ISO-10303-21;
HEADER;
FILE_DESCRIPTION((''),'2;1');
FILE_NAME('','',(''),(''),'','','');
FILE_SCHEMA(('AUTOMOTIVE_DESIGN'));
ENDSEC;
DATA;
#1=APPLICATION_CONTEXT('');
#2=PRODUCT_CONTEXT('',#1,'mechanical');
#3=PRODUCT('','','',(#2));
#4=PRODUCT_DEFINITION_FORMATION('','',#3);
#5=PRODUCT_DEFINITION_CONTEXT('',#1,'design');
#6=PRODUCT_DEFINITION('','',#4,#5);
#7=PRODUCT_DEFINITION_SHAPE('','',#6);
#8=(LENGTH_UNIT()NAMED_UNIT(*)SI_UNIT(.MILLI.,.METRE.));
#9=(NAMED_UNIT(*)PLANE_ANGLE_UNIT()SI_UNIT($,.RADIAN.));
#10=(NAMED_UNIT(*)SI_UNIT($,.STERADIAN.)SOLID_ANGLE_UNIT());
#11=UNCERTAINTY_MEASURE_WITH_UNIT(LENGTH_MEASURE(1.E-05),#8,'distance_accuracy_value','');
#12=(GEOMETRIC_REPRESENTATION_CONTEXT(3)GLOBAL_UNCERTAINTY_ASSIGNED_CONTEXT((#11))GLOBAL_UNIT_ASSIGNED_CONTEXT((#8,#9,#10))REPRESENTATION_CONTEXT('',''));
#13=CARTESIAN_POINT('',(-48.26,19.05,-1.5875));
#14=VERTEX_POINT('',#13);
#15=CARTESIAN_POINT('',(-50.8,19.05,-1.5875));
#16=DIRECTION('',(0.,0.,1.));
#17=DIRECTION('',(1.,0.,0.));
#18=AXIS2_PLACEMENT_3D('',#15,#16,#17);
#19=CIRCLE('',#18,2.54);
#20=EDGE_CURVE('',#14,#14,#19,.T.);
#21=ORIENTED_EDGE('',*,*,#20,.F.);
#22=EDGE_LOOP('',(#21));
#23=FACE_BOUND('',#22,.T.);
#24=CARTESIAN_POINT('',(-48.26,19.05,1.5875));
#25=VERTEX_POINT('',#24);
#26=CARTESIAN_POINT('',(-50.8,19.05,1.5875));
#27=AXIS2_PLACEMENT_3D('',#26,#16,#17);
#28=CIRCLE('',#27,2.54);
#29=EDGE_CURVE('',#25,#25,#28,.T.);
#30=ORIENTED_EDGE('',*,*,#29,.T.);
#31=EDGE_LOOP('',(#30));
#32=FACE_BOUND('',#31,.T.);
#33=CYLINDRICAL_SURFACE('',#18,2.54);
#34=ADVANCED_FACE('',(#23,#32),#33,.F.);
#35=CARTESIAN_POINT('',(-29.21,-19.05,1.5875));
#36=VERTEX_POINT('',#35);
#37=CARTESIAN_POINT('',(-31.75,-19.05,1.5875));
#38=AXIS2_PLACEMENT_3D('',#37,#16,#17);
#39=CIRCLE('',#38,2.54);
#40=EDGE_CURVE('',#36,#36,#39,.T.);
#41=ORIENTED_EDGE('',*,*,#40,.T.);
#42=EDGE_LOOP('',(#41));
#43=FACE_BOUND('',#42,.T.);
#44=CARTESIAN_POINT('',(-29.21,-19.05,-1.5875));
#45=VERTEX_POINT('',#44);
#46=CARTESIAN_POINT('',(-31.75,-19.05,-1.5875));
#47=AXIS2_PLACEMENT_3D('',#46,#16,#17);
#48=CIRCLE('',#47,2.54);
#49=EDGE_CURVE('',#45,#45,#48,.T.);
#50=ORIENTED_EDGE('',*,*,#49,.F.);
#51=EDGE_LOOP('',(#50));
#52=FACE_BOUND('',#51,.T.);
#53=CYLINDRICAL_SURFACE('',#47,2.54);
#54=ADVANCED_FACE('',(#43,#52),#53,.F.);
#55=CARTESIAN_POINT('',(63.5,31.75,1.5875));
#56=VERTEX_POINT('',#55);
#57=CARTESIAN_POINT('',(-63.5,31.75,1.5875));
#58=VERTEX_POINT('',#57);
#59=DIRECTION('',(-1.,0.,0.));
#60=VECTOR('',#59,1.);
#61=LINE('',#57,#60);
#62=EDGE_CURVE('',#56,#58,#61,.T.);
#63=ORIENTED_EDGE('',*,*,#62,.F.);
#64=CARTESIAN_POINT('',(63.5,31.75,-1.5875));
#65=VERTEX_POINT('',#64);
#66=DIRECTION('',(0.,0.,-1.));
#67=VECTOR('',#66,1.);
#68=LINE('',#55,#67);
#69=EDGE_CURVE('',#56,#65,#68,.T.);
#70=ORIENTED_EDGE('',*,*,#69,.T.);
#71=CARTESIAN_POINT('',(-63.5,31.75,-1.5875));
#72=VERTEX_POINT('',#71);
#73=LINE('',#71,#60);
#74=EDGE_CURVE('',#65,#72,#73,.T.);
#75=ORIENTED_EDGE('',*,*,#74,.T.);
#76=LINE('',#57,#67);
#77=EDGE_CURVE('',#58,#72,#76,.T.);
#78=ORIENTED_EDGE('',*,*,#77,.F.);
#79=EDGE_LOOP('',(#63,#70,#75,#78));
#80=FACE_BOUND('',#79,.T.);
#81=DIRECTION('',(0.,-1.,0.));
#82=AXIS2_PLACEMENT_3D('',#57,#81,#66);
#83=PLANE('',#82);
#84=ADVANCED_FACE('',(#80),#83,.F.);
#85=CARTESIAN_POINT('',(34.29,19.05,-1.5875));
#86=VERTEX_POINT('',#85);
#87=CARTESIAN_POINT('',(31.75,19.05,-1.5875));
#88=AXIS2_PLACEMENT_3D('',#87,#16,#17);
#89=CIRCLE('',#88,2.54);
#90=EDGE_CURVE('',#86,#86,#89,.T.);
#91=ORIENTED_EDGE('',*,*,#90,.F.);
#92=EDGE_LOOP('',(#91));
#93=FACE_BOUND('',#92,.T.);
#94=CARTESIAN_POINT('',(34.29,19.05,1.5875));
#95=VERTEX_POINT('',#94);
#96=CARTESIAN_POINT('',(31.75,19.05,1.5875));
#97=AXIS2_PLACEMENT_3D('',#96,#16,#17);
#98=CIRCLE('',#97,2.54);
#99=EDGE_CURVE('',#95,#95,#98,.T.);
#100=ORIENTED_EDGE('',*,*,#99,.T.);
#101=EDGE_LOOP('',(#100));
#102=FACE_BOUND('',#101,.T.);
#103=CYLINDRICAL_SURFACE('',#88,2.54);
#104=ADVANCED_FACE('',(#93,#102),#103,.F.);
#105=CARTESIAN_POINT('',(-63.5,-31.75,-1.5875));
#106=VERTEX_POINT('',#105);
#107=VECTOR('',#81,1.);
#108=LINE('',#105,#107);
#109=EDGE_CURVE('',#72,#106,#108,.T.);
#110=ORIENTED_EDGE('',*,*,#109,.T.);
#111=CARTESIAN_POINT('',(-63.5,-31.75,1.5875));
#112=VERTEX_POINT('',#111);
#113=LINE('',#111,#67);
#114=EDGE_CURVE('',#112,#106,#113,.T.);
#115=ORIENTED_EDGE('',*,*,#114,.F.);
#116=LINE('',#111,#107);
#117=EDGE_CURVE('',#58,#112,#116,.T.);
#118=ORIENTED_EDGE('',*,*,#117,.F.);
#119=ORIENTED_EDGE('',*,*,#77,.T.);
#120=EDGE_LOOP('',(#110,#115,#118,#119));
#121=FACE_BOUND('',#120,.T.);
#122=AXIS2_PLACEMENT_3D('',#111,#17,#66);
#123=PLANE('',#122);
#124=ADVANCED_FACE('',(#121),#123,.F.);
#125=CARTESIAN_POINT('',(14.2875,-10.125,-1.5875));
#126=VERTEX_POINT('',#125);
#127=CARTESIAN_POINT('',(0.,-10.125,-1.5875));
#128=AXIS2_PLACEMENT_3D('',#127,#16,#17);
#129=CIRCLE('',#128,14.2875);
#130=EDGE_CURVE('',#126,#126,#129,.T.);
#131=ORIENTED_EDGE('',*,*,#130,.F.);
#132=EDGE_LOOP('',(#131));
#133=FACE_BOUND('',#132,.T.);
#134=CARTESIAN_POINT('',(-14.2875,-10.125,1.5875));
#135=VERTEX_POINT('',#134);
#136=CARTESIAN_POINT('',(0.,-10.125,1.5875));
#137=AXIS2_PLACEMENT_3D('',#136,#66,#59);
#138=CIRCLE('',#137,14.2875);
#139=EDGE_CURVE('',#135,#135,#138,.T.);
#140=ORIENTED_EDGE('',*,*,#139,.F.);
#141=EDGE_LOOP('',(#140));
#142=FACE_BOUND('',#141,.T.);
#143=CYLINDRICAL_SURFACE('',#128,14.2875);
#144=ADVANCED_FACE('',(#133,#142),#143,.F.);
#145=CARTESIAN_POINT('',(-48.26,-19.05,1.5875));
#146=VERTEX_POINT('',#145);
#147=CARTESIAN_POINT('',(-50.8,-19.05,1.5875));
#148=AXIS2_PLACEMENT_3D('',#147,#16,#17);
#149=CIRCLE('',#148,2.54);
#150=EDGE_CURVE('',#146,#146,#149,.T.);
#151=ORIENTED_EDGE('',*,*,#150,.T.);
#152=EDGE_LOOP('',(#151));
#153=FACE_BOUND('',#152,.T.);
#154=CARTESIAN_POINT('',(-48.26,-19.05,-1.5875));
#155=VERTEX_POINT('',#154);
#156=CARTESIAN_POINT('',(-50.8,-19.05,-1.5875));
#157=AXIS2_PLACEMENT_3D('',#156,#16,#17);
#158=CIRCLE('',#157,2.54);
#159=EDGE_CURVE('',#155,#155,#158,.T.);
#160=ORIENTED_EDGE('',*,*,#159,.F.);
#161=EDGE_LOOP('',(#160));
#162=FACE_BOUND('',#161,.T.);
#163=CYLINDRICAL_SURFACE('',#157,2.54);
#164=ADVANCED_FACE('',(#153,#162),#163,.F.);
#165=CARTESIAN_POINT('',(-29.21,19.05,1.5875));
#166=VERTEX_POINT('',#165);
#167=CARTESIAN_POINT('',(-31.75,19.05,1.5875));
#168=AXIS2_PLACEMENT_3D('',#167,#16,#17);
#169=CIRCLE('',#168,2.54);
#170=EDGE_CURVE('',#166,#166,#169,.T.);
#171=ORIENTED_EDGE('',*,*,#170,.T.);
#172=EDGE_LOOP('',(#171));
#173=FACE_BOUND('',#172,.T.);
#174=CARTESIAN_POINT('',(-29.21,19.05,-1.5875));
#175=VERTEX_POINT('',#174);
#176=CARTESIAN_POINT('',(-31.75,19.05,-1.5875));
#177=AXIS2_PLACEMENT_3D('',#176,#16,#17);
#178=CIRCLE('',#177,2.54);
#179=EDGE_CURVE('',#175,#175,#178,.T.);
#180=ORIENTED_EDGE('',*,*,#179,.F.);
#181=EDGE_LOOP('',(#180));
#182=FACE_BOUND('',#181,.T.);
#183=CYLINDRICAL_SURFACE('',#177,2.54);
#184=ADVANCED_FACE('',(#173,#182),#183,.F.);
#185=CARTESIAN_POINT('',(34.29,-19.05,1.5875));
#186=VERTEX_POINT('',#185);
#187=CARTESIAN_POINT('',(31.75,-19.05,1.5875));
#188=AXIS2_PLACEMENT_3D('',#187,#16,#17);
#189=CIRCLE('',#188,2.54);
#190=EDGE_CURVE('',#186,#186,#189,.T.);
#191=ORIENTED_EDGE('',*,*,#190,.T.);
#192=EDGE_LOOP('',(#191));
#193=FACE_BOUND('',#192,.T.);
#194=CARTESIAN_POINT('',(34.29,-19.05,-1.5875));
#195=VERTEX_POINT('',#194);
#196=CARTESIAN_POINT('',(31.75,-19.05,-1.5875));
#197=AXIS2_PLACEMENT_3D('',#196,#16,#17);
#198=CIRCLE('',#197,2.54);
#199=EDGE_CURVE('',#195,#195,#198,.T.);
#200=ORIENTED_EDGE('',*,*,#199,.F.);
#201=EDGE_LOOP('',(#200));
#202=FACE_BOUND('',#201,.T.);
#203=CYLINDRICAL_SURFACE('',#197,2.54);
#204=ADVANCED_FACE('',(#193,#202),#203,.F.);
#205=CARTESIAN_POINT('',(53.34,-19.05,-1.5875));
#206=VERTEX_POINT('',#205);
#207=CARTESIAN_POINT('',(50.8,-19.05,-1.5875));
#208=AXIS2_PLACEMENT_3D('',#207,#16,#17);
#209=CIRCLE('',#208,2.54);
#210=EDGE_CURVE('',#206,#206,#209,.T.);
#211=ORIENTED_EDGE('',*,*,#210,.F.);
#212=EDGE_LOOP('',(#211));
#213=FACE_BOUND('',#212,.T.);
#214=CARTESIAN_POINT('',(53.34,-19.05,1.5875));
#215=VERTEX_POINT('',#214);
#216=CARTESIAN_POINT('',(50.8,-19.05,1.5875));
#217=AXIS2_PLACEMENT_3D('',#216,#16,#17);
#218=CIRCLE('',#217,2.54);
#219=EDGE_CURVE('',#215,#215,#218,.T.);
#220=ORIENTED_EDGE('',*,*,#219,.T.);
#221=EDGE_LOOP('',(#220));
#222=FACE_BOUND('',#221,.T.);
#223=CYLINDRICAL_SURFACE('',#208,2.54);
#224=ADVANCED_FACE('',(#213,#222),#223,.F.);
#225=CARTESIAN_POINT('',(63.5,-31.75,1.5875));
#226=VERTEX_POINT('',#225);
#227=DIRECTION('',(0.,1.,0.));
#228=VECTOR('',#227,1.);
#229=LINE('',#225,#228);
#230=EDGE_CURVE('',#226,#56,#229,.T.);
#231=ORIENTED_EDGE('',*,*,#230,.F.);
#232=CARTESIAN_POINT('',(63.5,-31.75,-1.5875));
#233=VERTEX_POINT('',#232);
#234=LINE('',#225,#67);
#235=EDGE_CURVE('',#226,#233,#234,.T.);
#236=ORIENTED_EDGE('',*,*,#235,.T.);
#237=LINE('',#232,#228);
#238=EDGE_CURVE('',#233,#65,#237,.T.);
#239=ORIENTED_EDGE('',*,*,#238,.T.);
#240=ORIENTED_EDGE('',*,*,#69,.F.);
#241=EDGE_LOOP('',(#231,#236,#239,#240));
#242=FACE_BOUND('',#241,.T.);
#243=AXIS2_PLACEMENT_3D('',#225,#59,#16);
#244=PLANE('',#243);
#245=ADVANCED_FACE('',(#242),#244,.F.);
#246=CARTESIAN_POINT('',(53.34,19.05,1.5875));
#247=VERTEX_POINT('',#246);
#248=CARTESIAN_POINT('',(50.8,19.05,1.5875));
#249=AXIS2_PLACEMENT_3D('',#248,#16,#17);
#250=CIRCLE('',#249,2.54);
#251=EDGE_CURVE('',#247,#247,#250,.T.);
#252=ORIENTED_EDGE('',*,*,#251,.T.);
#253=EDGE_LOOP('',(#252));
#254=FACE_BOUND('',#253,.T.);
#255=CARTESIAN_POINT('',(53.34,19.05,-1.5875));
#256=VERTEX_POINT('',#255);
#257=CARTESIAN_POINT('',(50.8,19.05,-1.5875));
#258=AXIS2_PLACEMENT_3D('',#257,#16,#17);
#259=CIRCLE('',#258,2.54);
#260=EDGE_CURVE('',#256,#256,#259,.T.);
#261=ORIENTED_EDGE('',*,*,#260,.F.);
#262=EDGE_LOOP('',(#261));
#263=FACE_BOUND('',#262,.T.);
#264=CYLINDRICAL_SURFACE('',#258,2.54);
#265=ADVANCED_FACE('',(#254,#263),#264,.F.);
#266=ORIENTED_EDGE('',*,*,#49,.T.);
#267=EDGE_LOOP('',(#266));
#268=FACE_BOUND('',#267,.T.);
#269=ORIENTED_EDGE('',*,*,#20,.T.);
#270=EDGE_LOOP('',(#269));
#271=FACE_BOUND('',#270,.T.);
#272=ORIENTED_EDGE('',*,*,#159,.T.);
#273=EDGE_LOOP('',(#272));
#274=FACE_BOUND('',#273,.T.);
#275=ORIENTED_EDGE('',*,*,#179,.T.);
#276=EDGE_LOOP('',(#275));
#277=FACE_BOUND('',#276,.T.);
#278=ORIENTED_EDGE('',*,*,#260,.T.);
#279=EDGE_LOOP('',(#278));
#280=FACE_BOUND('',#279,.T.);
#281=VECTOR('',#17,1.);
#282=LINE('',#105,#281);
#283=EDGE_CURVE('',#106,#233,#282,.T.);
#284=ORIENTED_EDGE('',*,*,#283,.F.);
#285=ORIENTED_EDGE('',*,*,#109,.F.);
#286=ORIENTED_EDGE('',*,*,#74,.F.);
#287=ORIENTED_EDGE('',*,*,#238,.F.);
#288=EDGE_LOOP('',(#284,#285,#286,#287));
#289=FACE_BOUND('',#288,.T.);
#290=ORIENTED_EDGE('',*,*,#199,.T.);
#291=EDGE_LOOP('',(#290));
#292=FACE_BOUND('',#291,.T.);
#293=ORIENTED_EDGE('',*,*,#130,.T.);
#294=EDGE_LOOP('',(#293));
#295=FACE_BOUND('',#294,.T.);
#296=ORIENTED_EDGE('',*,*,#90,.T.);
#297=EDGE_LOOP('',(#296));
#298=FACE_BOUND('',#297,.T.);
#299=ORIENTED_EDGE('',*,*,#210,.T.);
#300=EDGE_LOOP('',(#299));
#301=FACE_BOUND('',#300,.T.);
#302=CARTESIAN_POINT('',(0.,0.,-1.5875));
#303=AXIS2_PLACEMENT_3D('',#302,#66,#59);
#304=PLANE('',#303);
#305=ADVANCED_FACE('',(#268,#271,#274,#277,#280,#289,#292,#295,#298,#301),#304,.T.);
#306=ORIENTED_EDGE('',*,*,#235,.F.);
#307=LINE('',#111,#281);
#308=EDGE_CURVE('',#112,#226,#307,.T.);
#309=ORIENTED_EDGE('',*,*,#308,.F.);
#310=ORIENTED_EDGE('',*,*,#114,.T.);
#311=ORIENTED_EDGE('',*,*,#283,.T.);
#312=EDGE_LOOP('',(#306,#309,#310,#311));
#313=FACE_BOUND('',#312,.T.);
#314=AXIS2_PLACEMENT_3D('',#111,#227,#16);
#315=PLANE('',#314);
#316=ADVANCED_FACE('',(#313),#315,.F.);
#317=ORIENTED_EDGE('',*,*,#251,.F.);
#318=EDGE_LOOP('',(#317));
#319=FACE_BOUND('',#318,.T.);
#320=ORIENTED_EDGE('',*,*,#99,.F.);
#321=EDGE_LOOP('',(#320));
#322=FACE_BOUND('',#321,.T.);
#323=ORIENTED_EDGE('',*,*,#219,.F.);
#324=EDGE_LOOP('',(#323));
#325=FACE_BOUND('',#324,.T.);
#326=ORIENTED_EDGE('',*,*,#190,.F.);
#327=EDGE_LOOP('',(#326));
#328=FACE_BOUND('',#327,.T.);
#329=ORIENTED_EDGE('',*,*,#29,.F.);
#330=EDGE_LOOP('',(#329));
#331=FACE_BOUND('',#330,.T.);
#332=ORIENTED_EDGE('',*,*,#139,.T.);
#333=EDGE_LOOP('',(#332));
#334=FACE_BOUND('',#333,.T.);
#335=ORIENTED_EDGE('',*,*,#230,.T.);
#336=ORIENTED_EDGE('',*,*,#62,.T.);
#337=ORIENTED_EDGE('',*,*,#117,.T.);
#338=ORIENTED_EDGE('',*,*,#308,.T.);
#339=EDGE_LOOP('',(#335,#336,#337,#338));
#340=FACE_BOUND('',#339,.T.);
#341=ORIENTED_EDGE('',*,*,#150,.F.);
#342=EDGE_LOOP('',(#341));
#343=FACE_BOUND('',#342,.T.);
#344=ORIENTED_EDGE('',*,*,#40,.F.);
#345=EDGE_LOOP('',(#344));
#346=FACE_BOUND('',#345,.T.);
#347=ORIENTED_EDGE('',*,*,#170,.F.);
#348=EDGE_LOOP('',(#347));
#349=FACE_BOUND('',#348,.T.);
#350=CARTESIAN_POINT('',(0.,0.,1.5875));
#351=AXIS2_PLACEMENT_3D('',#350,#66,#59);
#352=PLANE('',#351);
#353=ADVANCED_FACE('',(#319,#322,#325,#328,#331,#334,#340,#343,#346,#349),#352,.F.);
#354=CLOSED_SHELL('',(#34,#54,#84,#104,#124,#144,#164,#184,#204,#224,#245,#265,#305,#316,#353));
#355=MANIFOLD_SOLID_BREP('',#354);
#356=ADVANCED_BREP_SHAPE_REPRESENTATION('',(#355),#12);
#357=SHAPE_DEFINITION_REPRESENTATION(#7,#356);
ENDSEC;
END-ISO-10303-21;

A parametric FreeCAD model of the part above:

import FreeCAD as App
import Part
import Sketcher
from FreeCAD import Vector
Q = App.Units.Quantity

doc = App.newDocument("Part")
params = doc.addObject("Spreadsheet::Sheet", "Params")
for row, (alias, value) in enumerate([
    ("sketch1_width", "5 in"),
    ("sketch1_height", "2.5 in"),
    ("pad1_length", "0.125 in"),
    ("sketch2_diameter", "1.125 in"),
    ("sketch3_diameter", "0.2 in"),
    ("sketch4_diameter", "0.2 in"),
], start=1):
    params.set(f"A{row}", alias)
    params.set(f"B{row}", "=" + value)
    params.setAlias(f"B{row}", alias)

body = doc.addObject("PartDesign::Body", "Body")

sketch1 = doc.addObject("Sketcher::SketchObject", "Sketch")
body.addObject(sketch1)
sketch1.AttachmentSupport = (doc.XY_Plane, [""])
sketch1.MapMode = "FlatFace"
sketch1.addGeometry([
    Part.LineSegment(Vector(-64, 32, 0), Vector(-64, -32, 0)),
    Part.LineSegment(Vector(-64, -32, 0), Vector(64, -32, 0)),
    Part.LineSegment(Vector(64, -32, 0), Vector(64, 32, 0)),
    Part.LineSegment(Vector(64, 32, 0), Vector(-64, 32, 0)),
], False)
sketch1.addConstraint([
    Sketcher.Constraint("Coincident", 0, 2, 1, 1),
    Sketcher.Constraint("Coincident", 1, 2, 2, 1),
    Sketcher.Constraint("Coincident", 2, 2, 3, 1),
    Sketcher.Constraint("Coincident", 3, 2, 0, 1),
    Sketcher.Constraint("Vertical", 0),
    Sketcher.Constraint("Horizontal", 1),
    Sketcher.Constraint("Vertical", 2),
    Sketcher.Constraint("Horizontal", 3),
    Sketcher.Constraint("Symmetric", 0, 2, 2, 2, -1, 1),
    Sketcher.Constraint("DistanceX", 1, 1, 1, 2, Q("5 in")),
    Sketcher.Constraint("DistanceY", 0, 2, 0, 1, Q("2.5 in")),
])
sketch1.setExpression("Constraints[9]", "Params.sketch1_width")
sketch1.setExpression("Constraints[10]", "Params.sketch1_height")
pad1 = doc.addObject("PartDesign::Pad", "Pad")
body.addObject(pad1)
pad1.Profile = sketch1
pad1.setExpression("Length", "Params.pad1_length")
pad1.Midplane = True

sketch2 = doc.addObject("Sketcher::SketchObject", "Sketch001")
body.addObject(sketch2)
sketch2.AttachmentSupport = (doc.XY_Plane, [""])
sketch2.MapMode = "FlatFace"
sketch2.AttachmentOffset = App.Placement(Vector(0, 0, 0.0625 * 25.4), App.Rotation())
sketch2.addGeometry(Part.Circle(Vector(0, -10, 0), Vector(0, 0, 1), 14), False)
sketch2.addConstraint([
    Sketcher.Constraint("PointOnObject", 0, 3, -2),
    Sketcher.Constraint("Diameter", 0, Q("1.125 in")),
    Sketcher.Constraint("DistanceY", 0, 3, -1, 1, Q("10.125 mm")),
])
sketch2.setExpression("Constraints[1]", "Params.sketch2_diameter")
pocket1 = doc.addObject("PartDesign::Pocket", "Pocket")
body.addObject(pocket1)
pocket1.Profile = sketch2
pocket1.Type = "ThroughAll"
pocket1.Midplane = True

sketch3 = doc.addObject("Sketcher::SketchObject", "Sketch002")
body.addObject(sketch3)
sketch3.AttachmentSupport = (doc.XY_Plane, [""])
sketch3.MapMode = "FlatFace"
sketch3.addGeometry([
    Part.Circle(Vector(-50.8, 19.1, 0), Vector(0, 0, 1), 2.5),
    Part.Circle(Vector(-50.8, -19.1, 0), Vector(0, 0, 1), 2.5),
    Part.Circle(Vector(50.8, -19.1, 0), Vector(0, 0, 1), 2.5),
    Part.Circle(Vector(50.8, 19.1, 0), Vector(0, 0, 1), 2.5),
], False)
sketch3.addConstraint([
    Sketcher.Constraint("Equal", 0, 1),
    Sketcher.Constraint("Equal", 1, 2),
    Sketcher.Constraint("Equal", 2, 3),
    Sketcher.Constraint("Symmetric", 0, 3, 2, 3, -1, 1),
    Sketcher.Constraint("Symmetric", 1, 3, 3, 3, -1, 1),
    Sketcher.Constraint("Symmetric", 1, 3, 2, 3, -2),
    Sketcher.Constraint("Diameter", 0, Q("0.2 in")),
    Sketcher.Constraint("DistanceX", 0, 3, -1, 1, Q("2 in")),
    Sketcher.Constraint("DistanceY", 1, 3, 0, 3, Q("1.5 in")),
])
sketch3.setExpression("Constraints[6]", "Params.sketch3_diameter")
pocket2 = doc.addObject("PartDesign::Pocket", "Pocket001")
body.addObject(pocket2)
pocket2.Profile = sketch3
pocket2.Type = "ThroughAll"
pocket2.Midplane = True

sketch4 = doc.addObject("Sketcher::SketchObject", "Sketch003")
body.addObject(sketch4)
sketch4.AttachmentSupport = (doc.XY_Plane, [""])
sketch4.MapMode = "FlatFace"
sketch4.addGeometry([
    Part.Circle(Vector(31.8, 19.1, 0), Vector(0, 0, 1), 2.5),
    Part.Circle(Vector(-31.8, 19.1, 0), Vector(0, 0, 1), 2.5),
    Part.Circle(Vector(-31.8, -19.1, 0), Vector(0, 0, 1), 2.5),
    Part.Circle(Vector(31.8, -19.1, 0), Vector(0, 0, 1), 2.5),
], False)
sketch4.addConstraint([
    Sketcher.Constraint("Equal", 0, 1),
    Sketcher.Constraint("Equal", 1, 2),
    Sketcher.Constraint("Equal", 2, 3),
    Sketcher.Constraint("Symmetric", 0, 3, 2, 3, -1, 1),
    Sketcher.Constraint("Symmetric", 1, 3, 3, 3, -1, 1),
    Sketcher.Constraint("Symmetric", 0, 3, 1, 3, -2),
    Sketcher.Constraint("Diameter", 0, Q("0.2 in")),
    Sketcher.Constraint("DistanceX", 1, 3, 0, 3, Q("2.5 in")),
    Sketcher.Constraint("DistanceY", 2, 3, 1, 3, Q("1.5 in")),
])
sketch4.setExpression("Constraints[6]", "Params.sketch4_diameter")
pocket3 = doc.addObject("PartDesign::Pocket", "Pocket002")
body.addObject(pocket3)
pocket3.Profile = sketch4
pocket3.Type = "ThroughAll"
pocket3.Midplane = True

doc.recompute()
